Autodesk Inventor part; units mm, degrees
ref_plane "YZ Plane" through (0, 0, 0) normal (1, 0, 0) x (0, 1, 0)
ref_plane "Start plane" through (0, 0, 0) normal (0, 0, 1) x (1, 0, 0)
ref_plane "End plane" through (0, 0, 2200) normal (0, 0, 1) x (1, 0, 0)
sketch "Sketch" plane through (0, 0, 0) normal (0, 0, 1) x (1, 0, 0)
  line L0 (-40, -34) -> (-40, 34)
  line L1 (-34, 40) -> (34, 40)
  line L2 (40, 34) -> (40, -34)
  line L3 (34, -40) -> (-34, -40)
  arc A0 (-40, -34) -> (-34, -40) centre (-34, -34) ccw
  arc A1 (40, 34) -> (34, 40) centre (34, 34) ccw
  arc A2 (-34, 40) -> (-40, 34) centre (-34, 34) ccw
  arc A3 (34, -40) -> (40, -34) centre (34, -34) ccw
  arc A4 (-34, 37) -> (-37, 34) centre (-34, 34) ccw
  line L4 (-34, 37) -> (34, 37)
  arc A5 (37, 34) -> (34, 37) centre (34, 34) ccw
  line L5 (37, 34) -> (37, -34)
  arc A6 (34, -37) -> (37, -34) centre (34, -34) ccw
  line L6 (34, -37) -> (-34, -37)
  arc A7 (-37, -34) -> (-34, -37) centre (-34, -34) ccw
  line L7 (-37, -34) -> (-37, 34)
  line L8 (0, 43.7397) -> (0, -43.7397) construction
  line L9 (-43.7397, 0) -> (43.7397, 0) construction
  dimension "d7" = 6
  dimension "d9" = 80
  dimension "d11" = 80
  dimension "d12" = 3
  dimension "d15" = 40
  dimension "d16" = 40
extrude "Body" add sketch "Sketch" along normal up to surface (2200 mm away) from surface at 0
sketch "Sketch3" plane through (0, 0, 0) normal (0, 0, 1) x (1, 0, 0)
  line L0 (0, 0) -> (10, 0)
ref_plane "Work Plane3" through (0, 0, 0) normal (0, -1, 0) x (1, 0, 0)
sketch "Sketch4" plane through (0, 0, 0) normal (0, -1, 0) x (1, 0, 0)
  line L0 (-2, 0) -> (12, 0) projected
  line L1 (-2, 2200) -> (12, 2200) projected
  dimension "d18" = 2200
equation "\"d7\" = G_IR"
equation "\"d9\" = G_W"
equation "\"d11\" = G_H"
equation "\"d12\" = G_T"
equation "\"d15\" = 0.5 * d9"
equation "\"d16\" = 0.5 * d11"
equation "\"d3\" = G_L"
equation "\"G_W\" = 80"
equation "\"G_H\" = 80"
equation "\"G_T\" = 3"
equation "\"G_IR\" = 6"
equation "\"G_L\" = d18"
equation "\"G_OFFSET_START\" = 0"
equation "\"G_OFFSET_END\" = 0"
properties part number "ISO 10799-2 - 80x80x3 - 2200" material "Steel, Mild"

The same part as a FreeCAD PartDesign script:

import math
import FreeCAD as App
import Part
import Sketcher

V = App.Vector

doc = App.newDocument("Part")
body = doc.addObject("PartDesign::Body", "Body")

# Sketch on XY plane
sketch1 = doc.addObject("Sketcher::SketchObject", "Sketch")
body.addObject(sketch1)
sketch1.AttachmentSupport = (doc.XY_Plane, [""])
sketch1.MapMode = "FlatFace"
sketch1.addGeometry([
    Part.LineSegment(V(-40, 34, 0), V(-40, -34, 0)),  # 0
    Part.ArcOfCircle(Part.Circle(V(-34, -34, 0), V(0, 0, 1), 6), math.radians(180), math.radians(270)),  # 1
    Part.LineSegment(V(-34, -40, 0), V(34, -40, 0)),  # 2
    Part.ArcOfCircle(Part.Circle(V(34, -34, 0), V(0, 0, 1), 6), math.radians(-90), math.radians(0)),  # 3
    Part.LineSegment(V(40, -34, 0), V(40, 34, 0)),  # 4
    Part.ArcOfCircle(Part.Circle(V(34, 34, 0), V(0, 0, 1), 6), math.radians(0), math.radians(90)),  # 5
    Part.LineSegment(V(34, 40, 0), V(-34, 40, 0)),  # 6
    Part.ArcOfCircle(Part.Circle(V(-34, 34, 0), V(0, 0, 1), 6), math.radians(90), math.radians(180)),  # 7
    Part.ArcOfCircle(Part.Circle(V(-34, 34, 0), V(0, 0, 1), 3), math.radians(90), math.radians(180)),  # 8
    Part.LineSegment(V(-34, 37, 0), V(34, 37, 0)),  # 9
    Part.ArcOfCircle(Part.Circle(V(34, 34, 0), V(0, 0, 1), 3), math.radians(0), math.radians(90)),  # 10
    Part.LineSegment(V(37, 34, 0), V(37, -34, 0)),  # 11
    Part.ArcOfCircle(Part.Circle(V(34, -34, 0), V(0, 0, 1), 3), math.radians(-90), math.radians(0)),  # 12
    Part.LineSegment(V(34, -37, 0), V(-34, -37, 0)),  # 13
    Part.ArcOfCircle(Part.Circle(V(-34, -34, 0), V(0, 0, 1), 3), math.radians(180), math.radians(270)),  # 14
    Part.LineSegment(V(-37, -34, 0), V(-37, 34, 0)),  # 15
], False)
sketch1.addConstraint([
    Sketcher.Constraint("Tangent", 0, 2, 1, 1),
    Sketcher.Constraint("Tangent", 1, 2, 2, 1),
    Sketcher.Constraint("Tangent", 2, 2, 3, 1),
    Sketcher.Constraint("Tangent", 3, 2, 4, 1),
    Sketcher.Constraint("Tangent", 4, 2, 5, 1),
    Sketcher.Constraint("Tangent", 5, 2, 6, 1),
    Sketcher.Constraint("Tangent", 6, 2, 7, 1),
    Sketcher.Constraint("Tangent", 7, 2, 0, 1),
    Sketcher.Constraint("Tangent", 8, 1, 9, 1),
    Sketcher.Constraint("Tangent", 9, 2, 10, 2),
    Sketcher.Constraint("Tangent", 10, 1, 11, 1),
    Sketcher.Constraint("Tangent", 11, 2, 12, 2),
    Sketcher.Constraint("Tangent", 12, 1, 13, 1),
    Sketcher.Constraint("Tangent", 13, 2, 14, 2),
    Sketcher.Constraint("Tangent", 14, 1, 15, 1),
    Sketcher.Constraint("Tangent", 15, 2, 8, 2),
    Sketcher.Constraint("Vertical", 0),
    Sketcher.Constraint("Horizontal", 2),
    Sketcher.Constraint("Vertical", 4),
    Sketcher.Constraint("Horizontal", 6),
    Sketcher.Constraint("Horizontal", 9),
    Sketcher.Constraint("Vertical", 11),
    Sketcher.Constraint("Horizontal", 13),
    Sketcher.Constraint("Vertical", 15),
    Sketcher.Constraint("Coincident", 8, 3, 7, 3),
    Sketcher.Constraint("Coincident", 10, 3, 5, 3),
    Sketcher.Constraint("Coincident", 12, 3, 3, 3),
    Sketcher.Constraint("Equal", 1, 3),
    Sketcher.Constraint("Equal", 3, 5),
    Sketcher.Constraint("Equal", 5, 7),
    Sketcher.Constraint("Equal", 12, 14),
    Sketcher.Constraint("Symmetric", 1, 3, 5, 3, -1, 1),
    Sketcher.Constraint("Equal", 13, 0),
    Sketcher.Constraint("Radius", 1, 6.0),
    Sketcher.Constraint("Radius", 8, 3.0),
    Sketcher.Constraint("DistanceX", 0, 2, -1, 1, 40.0),
])
pad1 = doc.addObject("PartDesign::Pad", "Pad")
body.addObject(pad1)
pad1.Profile = sketch1
pad1.Length = 2200

doc.recompute()
